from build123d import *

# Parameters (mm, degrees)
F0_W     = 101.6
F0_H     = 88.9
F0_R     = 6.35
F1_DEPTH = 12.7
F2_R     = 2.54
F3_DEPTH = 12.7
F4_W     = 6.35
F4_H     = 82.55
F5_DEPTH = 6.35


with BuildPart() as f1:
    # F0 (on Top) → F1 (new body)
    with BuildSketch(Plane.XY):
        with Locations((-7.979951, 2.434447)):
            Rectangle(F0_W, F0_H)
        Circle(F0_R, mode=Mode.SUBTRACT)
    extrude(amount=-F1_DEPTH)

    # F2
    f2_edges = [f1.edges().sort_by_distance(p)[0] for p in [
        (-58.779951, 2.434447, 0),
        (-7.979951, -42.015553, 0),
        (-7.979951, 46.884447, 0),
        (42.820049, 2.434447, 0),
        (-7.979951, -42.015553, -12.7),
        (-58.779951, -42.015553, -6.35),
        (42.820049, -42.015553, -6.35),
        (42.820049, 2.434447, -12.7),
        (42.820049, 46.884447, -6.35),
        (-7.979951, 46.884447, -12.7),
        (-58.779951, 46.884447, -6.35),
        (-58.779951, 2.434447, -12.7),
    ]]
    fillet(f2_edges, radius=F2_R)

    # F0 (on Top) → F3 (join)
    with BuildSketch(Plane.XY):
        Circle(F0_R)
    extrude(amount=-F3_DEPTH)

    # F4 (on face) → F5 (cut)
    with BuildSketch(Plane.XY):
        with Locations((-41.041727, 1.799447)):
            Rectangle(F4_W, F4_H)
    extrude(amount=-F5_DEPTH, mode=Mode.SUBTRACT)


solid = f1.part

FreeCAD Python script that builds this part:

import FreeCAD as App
import Part
import Sketcher
Q = App.Units.Quantity


def edges_at(feature, points):
    """Names of the edges that pass closest to the given points."""
    edges = feature.Shape.Edges
    near = lambda p: min(range(len(edges)), key=lambda i: edges[i].distToShape(Part.Vertex(*p))[0])
    return sorted({f"Edge{near(p) + 1}" for p in points})


def add_polygon(sketch, points):
    """Adds a closed chain of lines whose ends are joined by coincident constraints."""
    first, n = sketch.GeometryCount, len(points)
    for a, b in zip(points, points[1:] + points[:1]):
        sketch.addGeometry(Part.LineSegment(App.Vector(*a, 0), App.Vector(*b, 0)), False)
    for i in range(n):
        sketch.addConstraint(Sketcher.Constraint("Coincident", first + i, 2, first + (i + 1) % n, 1))

doc = App.newDocument("Part")
params = doc.addObject("Spreadsheet::Sheet", "Params")
for row, (alias, value) in enumerate([
    ("sketch1_diameter", "0.5 in"),
    ("sketch1_width", "4 in"),
    ("sketch1_height", "3.5 in"),
    ("pad1_length", "0.5 in"),
    ("fillet_radius", "0.1 in"),
    ("sketch2_diameter", "0.5 in"),
    ("pad2_length", "0.5 in"),
    ("sketch3_width", "0.25 in"),
    ("sketch3_height", "3.25 in"),
    ("pocket1_length", "0.25 in"),
], start=1):
    params.set(f"A{row}", alias)
    params.set(f"B{row}", "=" + value)
    params.setAlias(f"B{row}", alias)

body = doc.addObject("PartDesign::Body", "Body")

sketch1 = body.newObject("Sketcher::SketchObject", "Sketch")
sketch1.AttachmentSupport = (doc.getObject("XY_Plane"), [""])
sketch1.MapMode = "FlatFace"
add_polygon(sketch1, [(-59, 47), (-59, -42), (43, -42), (43, 47)])
sketch1.addGeometry(Part.Circle(App.Vector(0, 0, 0), App.Vector(0, 0, 1), 6), False)
sketch1.addConstraint([
    Sketcher.Constraint("Vertical", 0),
    Sketcher.Constraint("Horizontal", 1),
    Sketcher.Constraint("Vertical", 2),
    Sketcher.Constraint("Horizontal", 3),
    Sketcher.Constraint("Coincident", 4, 3, -1, 1),
    Sketcher.Constraint("Diameter", 4, Q("0.5 in")),
    Sketcher.Constraint("DistanceX", 1, 1, 1, 2, Q("4 in")),
    Sketcher.Constraint("DistanceY", 0, 2, 0, 1, Q("3.5 in")),
    Sketcher.Constraint("DistanceX", 0, 2, -1, 1, Q("58.779951 mm")),
    Sketcher.Constraint("DistanceY", 0, 2, -1, 1, Q("42.015553 mm")),
])
sketch1.setExpression("Constraints[9]", "Params.sketch1_diameter")
sketch1.setExpression("Constraints[10]", "Params.sketch1_width")
sketch1.setExpression("Constraints[11]", "Params.sketch1_height")
pad1 = body.newObject("PartDesign::Pad", "Pad")
pad1.Profile = sketch1
pad1.setExpression("Length", "Params.pad1_length")
pad1.Reversed = True
doc.recompute()

fillet = body.newObject("PartDesign::Fillet", "Fillet")
fillet.Base = (pad1, edges_at(pad1, [
    (-58.78, 2.434, 0),
    (-7.98, -42.016, 0),
    (-7.98, 46.884, 0),
    (42.82, 2.434, 0),
    (-7.98, -42.016, -12.7),
    (-58.78, -42.016, -6.35),
    (42.82, -42.016, -6.35),
    (42.82, 2.434, -12.7),
    (42.82, 46.884, -6.35),
    (-7.98, 46.884, -12.7),
    (-58.78, 46.884, -6.35),
    (-58.78, 2.434, -12.7),
]))
fillet.setExpression("Radius", "Params.fillet_radius")

sketch2 = body.newObject("Sketcher::SketchObject", "Sketch001")
sketch2.AttachmentSupport = (doc.getObject("XY_Plane"), [""])
sketch2.MapMode = "FlatFace"
sketch2.addGeometry(Part.Circle(App.Vector(0, 0, 0), App.Vector(0, 0, 1), 6), False)
sketch2.addConstraint([
    Sketcher.Constraint("Coincident", 0, 3, -1, 1),
    Sketcher.Constraint("Diameter", 0, Q("0.5 in")),
])
sketch2.setExpression("Constraints[1]", "Params.sketch2_diameter")
pad2 = body.newObject("PartDesign::Pad", "Pad001")
pad2.Profile = sketch2
pad2.setExpression("Length", "Params.pad2_length")
pad2.Reversed = True

sketch3 = body.newObject("Sketcher::SketchObject", "Sketch002")
sketch3.AttachmentSupport = (doc.getObject("XY_Plane"), [""])
sketch3.MapMode = "FlatFace"
add_polygon(sketch3, [(-44, 43), (-44, -39), (-38, -39), (-38, 43)])
sketch3.addConstraint([
    Sketcher.Constraint("Vertical", 0),
    Sketcher.Constraint("Horizontal", 1),
    Sketcher.Constraint("Vertical", 2),
    Sketcher.Constraint("Horizontal", 3),
    Sketcher.Constraint("DistanceX", 1, 1, 1, 2, Q("0.25 in")),
    Sketcher.Constraint("DistanceY", 0, 2, 0, 1, Q("3.25 in")),
    Sketcher.Constraint("DistanceX", 0, 2, -1, 1, Q("44.216727 mm")),
    Sketcher.Constraint("DistanceY", 0, 2, -1, 1, Q("39.475553 mm")),
])
sketch3.setExpression("Constraints[8]", "Params.sketch3_width")
sketch3.setExpression("Constraints[9]", "Params.sketch3_height")
pocket1 = body.newObject("PartDesign::Pocket", "Pocket")
pocket1.Profile = sketch3
pocket1.setExpression("Length", "Params.pocket1_length")

doc.recompute()
